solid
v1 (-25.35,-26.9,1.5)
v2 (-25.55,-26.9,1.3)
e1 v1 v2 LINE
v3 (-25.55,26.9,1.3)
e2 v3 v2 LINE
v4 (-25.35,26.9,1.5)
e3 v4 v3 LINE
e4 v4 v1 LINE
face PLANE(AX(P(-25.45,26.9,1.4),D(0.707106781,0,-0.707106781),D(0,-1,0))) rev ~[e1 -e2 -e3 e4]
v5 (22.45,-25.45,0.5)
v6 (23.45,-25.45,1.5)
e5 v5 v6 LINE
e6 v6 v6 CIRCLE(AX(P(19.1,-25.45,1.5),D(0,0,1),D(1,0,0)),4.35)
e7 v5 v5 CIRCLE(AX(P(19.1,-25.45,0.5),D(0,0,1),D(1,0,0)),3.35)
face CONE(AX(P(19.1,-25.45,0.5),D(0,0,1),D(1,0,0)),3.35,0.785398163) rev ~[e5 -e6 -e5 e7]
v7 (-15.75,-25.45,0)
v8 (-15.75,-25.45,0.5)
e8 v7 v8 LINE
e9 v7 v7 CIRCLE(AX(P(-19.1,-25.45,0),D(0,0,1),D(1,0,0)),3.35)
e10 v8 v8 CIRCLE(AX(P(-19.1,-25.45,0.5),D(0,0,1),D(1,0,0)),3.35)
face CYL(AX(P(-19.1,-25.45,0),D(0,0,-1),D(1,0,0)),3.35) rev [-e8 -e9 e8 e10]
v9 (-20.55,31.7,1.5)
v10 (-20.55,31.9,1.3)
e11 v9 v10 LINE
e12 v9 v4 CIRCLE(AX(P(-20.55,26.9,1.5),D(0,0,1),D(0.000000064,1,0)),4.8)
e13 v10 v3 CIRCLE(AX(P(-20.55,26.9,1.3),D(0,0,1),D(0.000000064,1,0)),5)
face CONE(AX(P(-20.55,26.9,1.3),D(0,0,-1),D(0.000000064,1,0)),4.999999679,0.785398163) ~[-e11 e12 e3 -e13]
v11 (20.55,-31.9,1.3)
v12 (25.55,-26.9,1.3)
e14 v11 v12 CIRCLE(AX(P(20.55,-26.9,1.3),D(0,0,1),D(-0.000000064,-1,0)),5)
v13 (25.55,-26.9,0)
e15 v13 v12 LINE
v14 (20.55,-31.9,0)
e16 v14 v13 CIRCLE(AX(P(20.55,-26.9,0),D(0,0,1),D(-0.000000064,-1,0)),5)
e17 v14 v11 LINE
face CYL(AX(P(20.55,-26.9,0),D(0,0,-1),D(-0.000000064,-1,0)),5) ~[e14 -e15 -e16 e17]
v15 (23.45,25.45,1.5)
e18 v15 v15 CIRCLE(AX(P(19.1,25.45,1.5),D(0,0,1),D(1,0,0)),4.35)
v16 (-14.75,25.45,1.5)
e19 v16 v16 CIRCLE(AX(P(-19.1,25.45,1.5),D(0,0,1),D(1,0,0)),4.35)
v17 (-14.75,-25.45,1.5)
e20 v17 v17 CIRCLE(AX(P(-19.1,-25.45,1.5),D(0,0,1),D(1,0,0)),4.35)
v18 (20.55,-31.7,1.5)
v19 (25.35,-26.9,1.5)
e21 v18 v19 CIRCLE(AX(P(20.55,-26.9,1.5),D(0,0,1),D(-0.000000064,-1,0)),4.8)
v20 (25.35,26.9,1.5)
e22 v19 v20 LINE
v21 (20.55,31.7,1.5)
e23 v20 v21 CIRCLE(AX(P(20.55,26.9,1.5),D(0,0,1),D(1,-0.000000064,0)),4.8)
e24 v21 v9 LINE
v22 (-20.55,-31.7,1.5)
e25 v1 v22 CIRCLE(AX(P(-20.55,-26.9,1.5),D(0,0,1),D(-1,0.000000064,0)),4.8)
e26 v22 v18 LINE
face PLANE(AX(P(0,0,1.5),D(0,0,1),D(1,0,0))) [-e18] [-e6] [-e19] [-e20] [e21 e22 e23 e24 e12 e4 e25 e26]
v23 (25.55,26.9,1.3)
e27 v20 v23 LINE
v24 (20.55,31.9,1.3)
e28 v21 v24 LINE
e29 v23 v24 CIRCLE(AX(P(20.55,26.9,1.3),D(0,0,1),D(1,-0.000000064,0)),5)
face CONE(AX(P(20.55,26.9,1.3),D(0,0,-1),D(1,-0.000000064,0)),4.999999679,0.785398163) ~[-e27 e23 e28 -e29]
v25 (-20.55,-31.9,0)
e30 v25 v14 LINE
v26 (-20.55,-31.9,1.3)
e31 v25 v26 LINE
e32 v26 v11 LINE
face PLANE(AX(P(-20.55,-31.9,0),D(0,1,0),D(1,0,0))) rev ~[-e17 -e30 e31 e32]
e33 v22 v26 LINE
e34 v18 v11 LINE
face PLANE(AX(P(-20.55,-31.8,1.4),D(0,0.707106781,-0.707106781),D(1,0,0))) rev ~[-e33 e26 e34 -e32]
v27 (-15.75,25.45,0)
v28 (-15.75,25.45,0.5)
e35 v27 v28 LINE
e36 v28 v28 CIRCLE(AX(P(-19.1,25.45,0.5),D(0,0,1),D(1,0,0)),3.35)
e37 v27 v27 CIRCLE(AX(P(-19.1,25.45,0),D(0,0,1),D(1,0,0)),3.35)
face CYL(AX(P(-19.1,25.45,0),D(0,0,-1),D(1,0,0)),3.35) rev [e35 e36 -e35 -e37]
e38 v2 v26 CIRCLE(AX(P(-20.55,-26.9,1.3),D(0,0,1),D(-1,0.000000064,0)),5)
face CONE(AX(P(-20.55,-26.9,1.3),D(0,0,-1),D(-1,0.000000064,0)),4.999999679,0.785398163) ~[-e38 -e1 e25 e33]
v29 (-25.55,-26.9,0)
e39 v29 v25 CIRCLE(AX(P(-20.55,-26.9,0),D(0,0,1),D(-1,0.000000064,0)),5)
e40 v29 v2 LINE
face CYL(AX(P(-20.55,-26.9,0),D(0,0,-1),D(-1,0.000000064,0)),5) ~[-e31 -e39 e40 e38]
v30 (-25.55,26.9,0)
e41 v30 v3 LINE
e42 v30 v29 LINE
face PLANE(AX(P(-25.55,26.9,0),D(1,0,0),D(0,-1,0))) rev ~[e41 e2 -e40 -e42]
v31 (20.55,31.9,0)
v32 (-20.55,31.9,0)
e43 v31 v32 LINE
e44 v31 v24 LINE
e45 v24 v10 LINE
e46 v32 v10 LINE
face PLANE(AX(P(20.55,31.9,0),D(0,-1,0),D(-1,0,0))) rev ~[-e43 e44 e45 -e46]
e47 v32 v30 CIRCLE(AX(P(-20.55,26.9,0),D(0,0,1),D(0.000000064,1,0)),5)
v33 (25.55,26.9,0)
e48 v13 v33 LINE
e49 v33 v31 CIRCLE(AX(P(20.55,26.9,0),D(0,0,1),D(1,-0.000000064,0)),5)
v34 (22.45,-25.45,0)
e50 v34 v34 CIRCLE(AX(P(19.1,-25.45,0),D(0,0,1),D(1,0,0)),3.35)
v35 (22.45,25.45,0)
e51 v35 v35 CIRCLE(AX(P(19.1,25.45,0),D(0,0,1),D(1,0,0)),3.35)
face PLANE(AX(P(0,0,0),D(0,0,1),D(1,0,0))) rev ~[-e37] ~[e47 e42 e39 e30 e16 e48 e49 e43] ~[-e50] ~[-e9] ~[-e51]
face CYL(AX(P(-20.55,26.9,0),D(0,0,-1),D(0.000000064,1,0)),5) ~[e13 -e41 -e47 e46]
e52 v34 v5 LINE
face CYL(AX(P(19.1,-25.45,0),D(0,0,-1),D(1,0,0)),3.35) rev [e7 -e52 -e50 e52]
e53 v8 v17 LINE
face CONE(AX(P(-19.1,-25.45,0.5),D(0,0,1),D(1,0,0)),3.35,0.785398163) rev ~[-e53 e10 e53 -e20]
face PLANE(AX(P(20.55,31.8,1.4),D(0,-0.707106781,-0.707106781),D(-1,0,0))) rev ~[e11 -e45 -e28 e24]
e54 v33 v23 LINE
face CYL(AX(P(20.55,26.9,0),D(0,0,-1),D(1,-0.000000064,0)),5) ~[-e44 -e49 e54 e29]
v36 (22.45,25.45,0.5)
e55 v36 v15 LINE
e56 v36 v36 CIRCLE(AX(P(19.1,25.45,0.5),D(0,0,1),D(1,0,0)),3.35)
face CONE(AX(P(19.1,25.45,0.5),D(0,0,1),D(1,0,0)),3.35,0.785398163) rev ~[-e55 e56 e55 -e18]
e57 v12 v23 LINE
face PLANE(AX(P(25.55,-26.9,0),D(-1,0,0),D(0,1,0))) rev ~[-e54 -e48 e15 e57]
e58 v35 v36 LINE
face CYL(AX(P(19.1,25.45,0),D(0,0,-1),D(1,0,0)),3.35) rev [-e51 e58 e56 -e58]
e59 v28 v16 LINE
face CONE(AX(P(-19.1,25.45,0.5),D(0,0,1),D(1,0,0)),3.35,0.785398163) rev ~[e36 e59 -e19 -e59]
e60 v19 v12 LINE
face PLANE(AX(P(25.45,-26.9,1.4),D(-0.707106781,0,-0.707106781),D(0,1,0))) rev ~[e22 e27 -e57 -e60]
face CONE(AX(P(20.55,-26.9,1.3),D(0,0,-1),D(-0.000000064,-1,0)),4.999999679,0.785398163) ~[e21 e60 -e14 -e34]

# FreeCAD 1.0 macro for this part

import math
import FreeCAD as App
import Part
import Sketcher


def edges_at(feature, points):
    """Names of the edges that pass closest to the given points."""
    edges = feature.Shape.Edges
    near = lambda p: min(range(len(edges)), key=lambda i: edges[i].distToShape(Part.Vertex(*p))[0])
    return sorted({f"Edge{near(p) + 1}" for p in points})

doc = App.newDocument("Part")
body = doc.addObject("PartDesign::Body", "Body")

# Sketch on XY plane
sketch1 = doc.addObject("Sketcher::SketchObject", "Sketch")
body.addObject(sketch1)
sketch1.AttachmentSupport = (doc.XY_Plane, [""])
sketch1.MapMode = "FlatFace"
sketch1.addGeometry(Part.LineSegment(App.Vector(20.6, 31.9, 0), App.Vector(-20.6, 31.9, 0)), False)
sketch1.addGeometry(Part.ArcOfCircle(Part.Circle(App.Vector(-20.6, 26.9, 0), App.Vector(0, 0, 1), 5), math.radians(90), math.radians(180)), False)
sketch1.addGeometry(Part.LineSegment(App.Vector(-25.6, 26.9, 0), App.Vector(-25.6, -26.9, 0)), False)
sketch1.addGeometry(Part.ArcOfCircle(Part.Circle(App.Vector(-20.6, -26.9, 0), App.Vector(0, 0, 1), 5), math.radians(180), math.radians(270)), False)
sketch1.addGeometry(Part.LineSegment(App.Vector(-20.6, -31.9, 0), App.Vector(20.6, -31.9, 0)), False)
sketch1.addGeometry(Part.ArcOfCircle(Part.Circle(App.Vector(20.6, -26.9, 0), App.Vector(0, 0, 1), 5), math.radians(-90), math.radians(0)), False)
sketch1.addGeometry(Part.LineSegment(App.Vector(25.6, -26.9, 0), App.Vector(25.6, 26.9, 0)), False)
sketch1.addGeometry(Part.ArcOfCircle(Part.Circle(App.Vector(20.6, 26.9, 0), App.Vector(0, 0, 1), 5), math.radians(0), math.radians(90)), False)
sketch1.addGeometry(Part.Circle(App.Vector(-19.1, -25.4, 0), App.Vector(0, 0, 1), 3.4), False)
sketch1.addGeometry(Part.Circle(App.Vector(19.1, -25.4, 0), App.Vector(0, 0, 1), 3.4), False)
sketch1.addGeometry(Part.Circle(App.Vector(-19.1, 25.4, 0), App.Vector(0, 0, 1), 3.4), False)
sketch1.addGeometry(Part.Circle(App.Vector(19.1, 25.4, 0), App.Vector(0, 0, 1), 3.4), False)
sketch1.addConstraint(Sketcher.Constraint("Tangent", 0, 2, 1, 1))
sketch1.addConstraint(Sketcher.Constraint("Tangent", 1, 2, 2, 1))
sketch1.addConstraint(Sketcher.Constraint("Tangent", 2, 2, 3, 1))
sketch1.addConstraint(Sketcher.Constraint("Tangent", 3, 2, 4, 1))
sketch1.addConstraint(Sketcher.Constraint("Tangent", 4, 2, 5, 1))
sketch1.addConstraint(Sketcher.Constraint("Tangent", 5, 2, 6, 1))
sketch1.addConstraint(Sketcher.Constraint("Tangent", 6, 2, 7, 1))
sketch1.addConstraint(Sketcher.Constraint("Tangent", 7, 2, 0, 1))
sketch1.addConstraint(Sketcher.Constraint("Horizontal", 0))
sketch1.addConstraint(Sketcher.Constraint("Vertical", 2))
sketch1.addConstraint(Sketcher.Constraint("Horizontal", 4))
sketch1.addConstraint(Sketcher.Constraint("Vertical", 6))
sketch1.addConstraint(Sketcher.Constraint("Equal", 1, 3))
sketch1.addConstraint(Sketcher.Constraint("Equal", 3, 5))
sketch1.addConstraint(Sketcher.Constraint("Equal", 5, 7))
sketch1.addConstraint(Sketcher.Constraint("Equal", 8, 9))
sketch1.addConstraint(Sketcher.Constraint("Equal", 9, 10))
sketch1.addConstraint(Sketcher.Constraint("Equal", 10, 11))
sketch1.addConstraint(Sketcher.Constraint("Symmetric", 1, 3, 5, 3, -1, 1))
sketch1.addConstraint(Sketcher.Constraint("Symmetric", 9, 3, 10, 3, -1, 1))
sketch1.addConstraint(Sketcher.Constraint("Symmetric", 8, 3, 11, 3, -1, 1))
sketch1.addConstraint(Sketcher.Constraint("Symmetric", 8, 3, 9, 3, -2))
sketch1.addConstraint(Sketcher.Constraint("Radius", 1, 5.0))
sketch1.addConstraint(Sketcher.Constraint("Diameter", 8, 6.7))
sketch1.addConstraint(Sketcher.Constraint("DistanceX", 0, 2, 0, 1, 41.1))
sketch1.addConstraint(Sketcher.Constraint("DistanceY", 2, 2, 2, 1, 53.8))
sketch1.addConstraint(Sketcher.Constraint("DistanceX", 8, 3, -1, 1, 19.1))
sketch1.addConstraint(Sketcher.Constraint("DistanceY", 8, 3, 10, 3, 50.9))
pad1 = doc.addObject("PartDesign::Pad", "Pad")
body.addObject(pad1)
pad1.Profile = sketch1
pad1.Length = 1.5
doc.recompute()

chamfer = doc.addObject("PartDesign::Chamfer", "Chamfer")
body.addObject(chamfer)
chamfer.Base = (pad1, edges_at(pad1, [
    (-22.45, 25.45, 1.5),
    (15.75, 25.45, 1.5),
    (15.75, -25.45, 1.5),
    (-22.45, -25.45, 1.5),
]))
chamfer.Size = 1
doc.recompute()

chamfer2 = doc.addObject("PartDesign::Chamfer", "Chamfer001")
body.addObject(chamfer2)
chamfer2.Base = (chamfer, edges_at(chamfer, [
    (-24.086, 30.436, 1.5),
    (-25.55, 0, 1.5),
    (-24.086, -30.436, 1.5),
    (0, 31.9, 1.5),
    (24.086, 30.436, 1.5),
    (25.55, 0, 1.5),
    (24.086, -30.436, 1.5),
    (0, -31.9, 1.5),
]))
chamfer2.Size = 0.2

doc.recompute()
